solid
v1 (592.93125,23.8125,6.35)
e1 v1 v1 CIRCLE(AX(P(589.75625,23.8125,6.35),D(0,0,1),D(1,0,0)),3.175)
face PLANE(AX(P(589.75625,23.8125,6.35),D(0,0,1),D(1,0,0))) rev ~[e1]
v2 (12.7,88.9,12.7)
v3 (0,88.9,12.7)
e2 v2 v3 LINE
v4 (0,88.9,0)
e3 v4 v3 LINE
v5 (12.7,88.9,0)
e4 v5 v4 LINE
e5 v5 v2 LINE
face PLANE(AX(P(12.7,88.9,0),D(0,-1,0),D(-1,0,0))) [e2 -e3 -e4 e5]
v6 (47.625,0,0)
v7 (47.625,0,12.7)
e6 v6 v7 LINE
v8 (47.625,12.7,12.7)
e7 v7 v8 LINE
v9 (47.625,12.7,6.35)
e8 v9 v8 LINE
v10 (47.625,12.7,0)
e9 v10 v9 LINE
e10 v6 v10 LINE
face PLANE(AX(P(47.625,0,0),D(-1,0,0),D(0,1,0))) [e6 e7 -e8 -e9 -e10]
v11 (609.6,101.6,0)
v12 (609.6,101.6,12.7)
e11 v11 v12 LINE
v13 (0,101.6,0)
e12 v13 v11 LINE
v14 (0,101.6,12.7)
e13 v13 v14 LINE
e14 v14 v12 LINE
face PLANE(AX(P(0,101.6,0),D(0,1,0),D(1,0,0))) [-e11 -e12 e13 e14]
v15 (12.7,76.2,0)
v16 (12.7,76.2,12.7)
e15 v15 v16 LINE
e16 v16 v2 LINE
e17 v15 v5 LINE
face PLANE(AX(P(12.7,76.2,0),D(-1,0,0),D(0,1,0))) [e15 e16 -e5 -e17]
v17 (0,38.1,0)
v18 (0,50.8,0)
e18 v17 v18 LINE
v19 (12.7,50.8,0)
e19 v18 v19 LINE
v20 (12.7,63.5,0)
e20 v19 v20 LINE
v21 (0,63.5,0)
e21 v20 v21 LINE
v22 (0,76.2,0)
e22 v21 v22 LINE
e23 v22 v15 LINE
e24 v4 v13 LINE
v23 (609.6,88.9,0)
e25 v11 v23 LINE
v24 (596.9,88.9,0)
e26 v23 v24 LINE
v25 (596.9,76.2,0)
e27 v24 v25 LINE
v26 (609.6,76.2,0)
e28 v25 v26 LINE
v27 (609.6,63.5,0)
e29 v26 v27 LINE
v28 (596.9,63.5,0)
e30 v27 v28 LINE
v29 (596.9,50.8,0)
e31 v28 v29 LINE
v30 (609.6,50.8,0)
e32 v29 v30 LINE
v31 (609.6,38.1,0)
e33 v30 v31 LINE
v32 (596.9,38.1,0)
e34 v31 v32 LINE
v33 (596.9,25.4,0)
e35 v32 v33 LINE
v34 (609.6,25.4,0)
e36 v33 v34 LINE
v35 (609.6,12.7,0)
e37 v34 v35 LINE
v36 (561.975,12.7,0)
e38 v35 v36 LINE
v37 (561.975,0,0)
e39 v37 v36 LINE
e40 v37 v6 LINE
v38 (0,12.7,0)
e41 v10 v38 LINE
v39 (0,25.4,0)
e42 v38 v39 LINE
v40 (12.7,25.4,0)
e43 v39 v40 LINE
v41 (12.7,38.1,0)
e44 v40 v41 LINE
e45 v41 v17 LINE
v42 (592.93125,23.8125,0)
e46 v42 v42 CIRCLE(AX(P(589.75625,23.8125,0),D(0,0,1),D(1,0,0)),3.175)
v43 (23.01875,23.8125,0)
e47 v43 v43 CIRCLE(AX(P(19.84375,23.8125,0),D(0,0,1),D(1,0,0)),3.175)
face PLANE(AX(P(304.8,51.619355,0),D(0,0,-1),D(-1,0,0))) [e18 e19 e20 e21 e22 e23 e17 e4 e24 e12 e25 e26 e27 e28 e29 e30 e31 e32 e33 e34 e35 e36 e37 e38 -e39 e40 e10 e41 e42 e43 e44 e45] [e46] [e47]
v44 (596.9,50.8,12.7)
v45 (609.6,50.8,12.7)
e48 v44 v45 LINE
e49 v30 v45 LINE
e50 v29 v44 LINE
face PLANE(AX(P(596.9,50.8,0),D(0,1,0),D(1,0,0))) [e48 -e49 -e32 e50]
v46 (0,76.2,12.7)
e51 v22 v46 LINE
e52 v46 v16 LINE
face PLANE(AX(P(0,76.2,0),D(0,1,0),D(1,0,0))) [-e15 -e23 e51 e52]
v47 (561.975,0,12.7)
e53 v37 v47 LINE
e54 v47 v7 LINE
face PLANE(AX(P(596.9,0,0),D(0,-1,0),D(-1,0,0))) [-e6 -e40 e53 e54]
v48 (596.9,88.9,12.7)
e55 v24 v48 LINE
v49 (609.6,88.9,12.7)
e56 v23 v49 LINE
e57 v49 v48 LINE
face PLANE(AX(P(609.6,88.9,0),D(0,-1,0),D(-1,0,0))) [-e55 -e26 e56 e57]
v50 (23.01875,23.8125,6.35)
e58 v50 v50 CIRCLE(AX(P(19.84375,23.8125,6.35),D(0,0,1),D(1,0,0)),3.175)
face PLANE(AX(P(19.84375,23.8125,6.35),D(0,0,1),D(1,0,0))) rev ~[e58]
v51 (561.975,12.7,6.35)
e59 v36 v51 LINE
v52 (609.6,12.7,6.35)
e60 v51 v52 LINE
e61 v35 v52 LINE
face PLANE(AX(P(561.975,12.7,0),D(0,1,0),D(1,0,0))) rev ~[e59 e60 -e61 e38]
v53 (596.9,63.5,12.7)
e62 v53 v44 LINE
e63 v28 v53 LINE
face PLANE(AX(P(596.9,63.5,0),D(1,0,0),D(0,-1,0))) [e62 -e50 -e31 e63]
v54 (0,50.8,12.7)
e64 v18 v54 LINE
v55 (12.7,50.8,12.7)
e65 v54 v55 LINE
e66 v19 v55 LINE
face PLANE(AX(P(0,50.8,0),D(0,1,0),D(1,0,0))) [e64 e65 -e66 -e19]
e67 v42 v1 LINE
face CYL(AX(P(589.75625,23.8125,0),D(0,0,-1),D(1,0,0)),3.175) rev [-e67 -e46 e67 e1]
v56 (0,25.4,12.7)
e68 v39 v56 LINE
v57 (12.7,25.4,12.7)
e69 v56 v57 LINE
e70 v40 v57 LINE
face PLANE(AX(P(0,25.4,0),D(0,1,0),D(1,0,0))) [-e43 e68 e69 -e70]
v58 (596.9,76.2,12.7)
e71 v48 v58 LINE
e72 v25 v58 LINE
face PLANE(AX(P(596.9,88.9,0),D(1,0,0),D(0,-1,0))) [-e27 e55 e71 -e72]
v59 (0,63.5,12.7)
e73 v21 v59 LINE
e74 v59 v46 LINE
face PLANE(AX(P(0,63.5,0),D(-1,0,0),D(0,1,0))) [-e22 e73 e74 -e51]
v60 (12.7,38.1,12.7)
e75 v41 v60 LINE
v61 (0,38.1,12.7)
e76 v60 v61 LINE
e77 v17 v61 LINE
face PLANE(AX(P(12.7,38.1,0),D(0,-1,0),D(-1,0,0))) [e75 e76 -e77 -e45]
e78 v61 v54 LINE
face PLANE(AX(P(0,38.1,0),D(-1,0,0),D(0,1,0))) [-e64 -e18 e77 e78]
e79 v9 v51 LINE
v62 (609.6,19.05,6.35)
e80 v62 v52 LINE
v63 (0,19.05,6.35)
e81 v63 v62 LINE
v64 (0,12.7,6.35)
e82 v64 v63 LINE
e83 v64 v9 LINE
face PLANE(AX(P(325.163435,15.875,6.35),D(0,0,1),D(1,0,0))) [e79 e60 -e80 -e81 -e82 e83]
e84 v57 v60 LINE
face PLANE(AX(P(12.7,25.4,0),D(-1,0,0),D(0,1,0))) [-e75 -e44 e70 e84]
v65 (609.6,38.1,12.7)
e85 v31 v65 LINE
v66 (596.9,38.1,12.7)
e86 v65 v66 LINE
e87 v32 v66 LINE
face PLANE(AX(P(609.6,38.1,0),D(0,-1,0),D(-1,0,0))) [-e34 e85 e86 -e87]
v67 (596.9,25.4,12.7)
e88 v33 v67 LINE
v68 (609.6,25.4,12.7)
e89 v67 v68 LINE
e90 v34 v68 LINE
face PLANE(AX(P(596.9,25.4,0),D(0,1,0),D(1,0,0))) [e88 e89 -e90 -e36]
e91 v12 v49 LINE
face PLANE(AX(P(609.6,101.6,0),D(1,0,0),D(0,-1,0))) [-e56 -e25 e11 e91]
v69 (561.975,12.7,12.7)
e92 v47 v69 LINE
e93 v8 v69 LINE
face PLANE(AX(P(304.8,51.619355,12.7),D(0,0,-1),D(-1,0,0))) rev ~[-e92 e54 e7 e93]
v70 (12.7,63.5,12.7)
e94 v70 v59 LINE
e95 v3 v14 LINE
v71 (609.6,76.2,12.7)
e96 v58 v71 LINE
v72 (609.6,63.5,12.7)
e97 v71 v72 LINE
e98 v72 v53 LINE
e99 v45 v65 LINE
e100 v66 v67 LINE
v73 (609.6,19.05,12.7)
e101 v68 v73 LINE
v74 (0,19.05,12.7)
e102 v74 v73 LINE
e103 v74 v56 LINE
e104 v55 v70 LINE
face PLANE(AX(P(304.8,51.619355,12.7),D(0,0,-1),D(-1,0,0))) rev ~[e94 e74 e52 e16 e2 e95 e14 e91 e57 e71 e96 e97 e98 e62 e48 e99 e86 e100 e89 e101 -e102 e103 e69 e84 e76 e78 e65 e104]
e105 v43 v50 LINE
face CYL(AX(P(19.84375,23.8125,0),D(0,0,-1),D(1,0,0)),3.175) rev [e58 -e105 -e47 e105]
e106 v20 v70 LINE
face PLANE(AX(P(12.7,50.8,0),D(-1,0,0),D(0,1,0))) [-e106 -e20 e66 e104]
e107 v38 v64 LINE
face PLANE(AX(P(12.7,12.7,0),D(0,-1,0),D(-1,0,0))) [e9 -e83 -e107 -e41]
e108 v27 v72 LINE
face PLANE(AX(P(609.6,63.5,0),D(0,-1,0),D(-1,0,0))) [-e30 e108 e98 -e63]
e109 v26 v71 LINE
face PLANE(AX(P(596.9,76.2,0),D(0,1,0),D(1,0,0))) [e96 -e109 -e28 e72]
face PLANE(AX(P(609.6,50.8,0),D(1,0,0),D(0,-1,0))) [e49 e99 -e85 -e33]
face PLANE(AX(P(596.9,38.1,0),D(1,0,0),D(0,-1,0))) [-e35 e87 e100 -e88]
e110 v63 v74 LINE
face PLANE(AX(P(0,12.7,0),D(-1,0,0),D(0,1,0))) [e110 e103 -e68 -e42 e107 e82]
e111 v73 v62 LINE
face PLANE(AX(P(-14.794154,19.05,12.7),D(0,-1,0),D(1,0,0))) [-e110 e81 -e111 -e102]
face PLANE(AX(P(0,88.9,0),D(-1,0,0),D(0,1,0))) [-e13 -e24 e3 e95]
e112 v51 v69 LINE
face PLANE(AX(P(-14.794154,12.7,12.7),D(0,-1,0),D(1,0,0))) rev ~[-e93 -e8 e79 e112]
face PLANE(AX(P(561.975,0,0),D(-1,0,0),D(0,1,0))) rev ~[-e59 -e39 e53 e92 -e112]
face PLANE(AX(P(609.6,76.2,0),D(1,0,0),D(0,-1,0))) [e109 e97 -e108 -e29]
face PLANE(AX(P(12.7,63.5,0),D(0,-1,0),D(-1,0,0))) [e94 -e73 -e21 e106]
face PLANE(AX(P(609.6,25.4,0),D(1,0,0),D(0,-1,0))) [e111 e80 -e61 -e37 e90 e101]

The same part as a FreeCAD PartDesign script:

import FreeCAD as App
import Part
import Sketcher
from FreeCAD import Vector
Q = App.Units.Quantity


def add_polygon(sketch, points):
    """Adds a closed chain of lines whose ends are joined by coincident constraints."""
    first, n = sketch.GeometryCount, len(points)
    for a, b in zip(points, points[1:] + points[:1]):
        sketch.addGeometry(Part.LineSegment(App.Vector(*a, 0), App.Vector(*b, 0)), False)
    for i in range(n):
        sketch.addConstraint(Sketcher.Constraint("Coincident", first + i, 2, first + (i + 1) % n, 1))

doc = App.newDocument("Part")
body = doc.addObject("PartDesign::Body", "Body")

# Sketch on XY plane
sketch1 = doc.addObject("Sketcher::SketchObject", "Sketch")
body.addObject(sketch1)
sketch1.AttachmentSupport = (doc.XY_Plane, [""])
sketch1.MapMode = "FlatFace"
add_polygon(sketch1, [(597, 89), (610, 89), (610, 102), (0, 102), (0, 89), (13, 89), (13, 76), (0, 76), (0, 64), (13, 64), (13, 51), (0, 51), (0, 38), (13, 38), (13, 25), (0, 25), (0, 13), (13, 13), (13, 0), (597, 0), (597, 13), (610, 13), (610, 25), (597, 25), (597, 38), (610, 38), (610, 51), (597, 51), (597, 64), (610, 64), (610, 76), (597, 76)])  # lines 0-31
sketch1.addConstraint([
    Sketcher.Constraint("Horizontal", 0),
    Sketcher.Constraint("Vertical", 1),
    Sketcher.Constraint("Horizontal", 2),
    Sketcher.Constraint("Vertical", 3),
    Sketcher.Constraint("Horizontal", 4),
    Sketcher.Constraint("Vertical", 5),
    Sketcher.Constraint("Horizontal", 6),
    Sketcher.Constraint("Vertical", 7),
    Sketcher.Constraint("Horizontal", 8),
    Sketcher.Constraint("Vertical", 9),
    Sketcher.Constraint("Horizontal", 10),
    Sketcher.Constraint("Vertical", 11),
    Sketcher.Constraint("Horizontal", 12),
    Sketcher.Constraint("Vertical", 13),
    Sketcher.Constraint("Horizontal", 14),
    Sketcher.Constraint("Vertical", 15),
    Sketcher.Constraint("Horizontal", 16),
    Sketcher.Constraint("Vertical", 17),
    Sketcher.Constraint("Horizontal", 18),
    Sketcher.Constraint("Vertical", 19),
    Sketcher.Constraint("Horizontal", 20),
    Sketcher.Constraint("Vertical", 21),
    Sketcher.Constraint("Horizontal", 22),
    Sketcher.Constraint("Vertical", 23),
    Sketcher.Constraint("Horizontal", 24),
    Sketcher.Constraint("Vertical", 25),
    Sketcher.Constraint("Horizontal", 26),
    Sketcher.Constraint("Vertical", 27),
    Sketcher.Constraint("Horizontal", 28),
    Sketcher.Constraint("Vertical", 29),
    Sketcher.Constraint("Horizontal", 30),
    Sketcher.Constraint("Vertical", 31),
    Sketcher.Constraint("PointOnObject", 2, 2, -2),
    Sketcher.Constraint("PointOnObject", 6, 2, -2),
    Sketcher.Constraint("PointOnObject", 10, 2, -2),
    Sketcher.Constraint("PointOnObject", 14, 2, -2),
    Sketcher.Constraint("PointOnObject", 17, 2, -1),
    Sketcher.Constraint("Horizontal", 0, 2, 3, 2),
    Sketcher.Constraint("Horizontal", 16, 2, 19, 2),
    Sketcher.Constraint("Horizontal", 14, 2, 21, 2),
    Sketcher.Constraint("Horizontal", 12, 2, 23, 2),
    Sketcher.Constraint("Horizontal", 10, 2, 25, 2),
    Sketcher.Constraint("Horizontal", 8, 2, 27, 2),
    Sketcher.Constraint("Horizontal", 6, 2, 29, 2),
    Sketcher.Constraint("Vertical", 5, 2, 8, 2),
    Sketcher.Constraint("Vertical", 9, 2, 12, 2),
    Sketcher.Constraint("Vertical", 13, 2, 16, 2),
    Sketcher.Constraint("Vertical", 1, 2, 20, 2),
    Sketcher.Constraint("Vertical", 19, 2, 22, 2),
    Sketcher.Constraint("Vertical", 21, 2, 24, 2),
    Sketcher.Constraint("Vertical", 23, 2, 26, 2),
    Sketcher.Constraint("Vertical", 25, 2, 28, 2),
    Sketcher.Constraint("Vertical", 27, 2, 30, 2),
    Sketcher.Constraint("Equal", 0, 4),
    Sketcher.Constraint("Equal", 30, 1),
    Sketcher.Constraint("Equal", 3, 5),
    Sketcher.Constraint("Equal", 5, 7),
    Sketcher.Constraint("Equal", 7, 9),
    Sketcher.Constraint("Equal", 9, 11),
    Sketcher.Constraint("Equal", 11, 13),
    Sketcher.Constraint("Equal", 13, 15),
    Sketcher.Constraint("Equal", 15, 17),
    Sketcher.Constraint("DistanceX", 2, 2, 2, 1, Q("24 in")),
    Sketcher.Constraint("DistanceX", 18, 1, 18, 2, Q("23 in")),
])
pad1 = doc.addObject("PartDesign::Pad", "Pad")
body.addObject(pad1)
pad1.Profile = sketch1
pad1.Length = Q("0.5 in")

# Sketch on XY plane
sketch2 = doc.addObject("Sketcher::SketchObject", "Sketch001")
body.addObject(sketch2)
sketch2.AttachmentSupport = (doc.XY_Plane, [""])
sketch2.MapMode = "FlatFace"
add_polygon(sketch2, [(562, 13), (562, 0), (597, 0), (597, 13)])  # lines 0-3
add_polygon(sketch2, [(13, 13), (13, 0), (48, 0), (48, 13)])  # lines 4-7
sketch2.addConstraint([
    Sketcher.Constraint("Vertical", 0),
    Sketcher.Constraint("Horizontal", 1),
    Sketcher.Constraint("Vertical", 2),
    Sketcher.Constraint("Horizontal", 3),
    Sketcher.Constraint("Vertical", 4),
    Sketcher.Constraint("Horizontal", 5),
    Sketcher.Constraint("Vertical", 6),
    Sketcher.Constraint("Horizontal", 7),
    Sketcher.Constraint("PointOnObject", 0, 2, -1),
    Sketcher.Constraint("PointOnObject", 4, 2, -1),
    Sketcher.Constraint("Horizontal", 3, 2, 6, 2),
    Sketcher.Constraint("Equal", 3, 5),
    Sketcher.Constraint("DistanceY", 0, 2, 0, 1, Q("0.5 in")),
    Sketcher.Constraint("DistanceX", 4, 2, 1, 2, Q("23 in")),
    Sketcher.Constraint("DistanceX", -1, 1, 1, 2, Q("23.5 in")),
    Sketcher.Constraint("DistanceX", 1, 1, 1, 2, Q("1.375 in")),
])
pocket1 = doc.addObject("PartDesign::Pocket", "Pocket")
body.addObject(pocket1)
pocket1.Profile = sketch2
pocket1.Type = "ThroughAll"
pocket1.Reversed = True

# Sketch on XY plane
sketch3 = doc.addObject("Sketcher::SketchObject", "Sketch002")
body.addObject(sketch3)
sketch3.AttachmentSupport = (doc.XY_Plane, [""])
sketch3.MapMode = "FlatFace"
sketch3.addGeometry([
    Part.Circle(Vector(589.8, 23.8, 0), Vector(0, 0, 1), 3.2),
    Part.Circle(Vector(19.8, 23.8, 0), Vector(0, 0, 1), 3.2),
], False)
sketch3.addConstraint([
    Sketcher.Constraint("Equal", 0, 1),
    Sketcher.Constraint("Horizontal", 0, 3, 1, 3),
    Sketcher.Constraint("Diameter", 0, Q("0.25 in")),
    Sketcher.Constraint("DistanceX", -1, 1, 0, 3, Q("23.21875 in")),
    Sketcher.Constraint("DistanceY", -1, 1, 0, 3, Q("0.9375 in")),
    Sketcher.Constraint("DistanceX", -1, 1, 1, 3, Q("0.78125 in")),
])
pocket2 = doc.addObject("PartDesign::Pocket", "Pocket001")
body.addObject(pocket2)
pocket2.Profile = sketch3
pocket2.Length = Q("0.25 in")
pocket2.Reversed = True

# Sketch on XY plane
sketch4 = doc.addObject("Sketcher::SketchObject", "Sketch003")
body.addObject(sketch4)
sketch4.AttachmentSupport = (doc.XY_Plane, [""])
sketch4.MapMode = "FlatFace"
sketch4.AttachmentOffset = App.Placement(Vector(0, 0, 0.5 * 25.4), App.Rotation())
add_polygon(sketch4, [(-15, 19), (-15, 13), (665, 13), (665, 19)])  # lines 0-3
sketch4.addConstraint([
    Sketcher.Constraint("Vertical", 0),
    Sketcher.Constraint("Horizontal", 1),
    Sketcher.Constraint("Vertical", 2),
    Sketcher.Constraint("Horizontal", 3),
    Sketcher.Constraint("DistanceY", 0, 2, 0, 1, Q("0.25 in")),
    Sketcher.Constraint("DistanceY", -1, 1, 0, 2, Q("0.5 in")),
    Sketcher.Constraint("DistanceX", 1, 1, 1, 2, Q("679.915177 mm")),
    Sketcher.Constraint("DistanceX", 0, 2, -1, 1, Q("14.794154 mm")),
])
pocket3 = doc.addObject("PartDesign::Pocket", "Pocket002")
body.addObject(pocket3)
pocket3.Profile = sketch4
pocket3.Length = Q("0.25 in")

doc.recompute()
